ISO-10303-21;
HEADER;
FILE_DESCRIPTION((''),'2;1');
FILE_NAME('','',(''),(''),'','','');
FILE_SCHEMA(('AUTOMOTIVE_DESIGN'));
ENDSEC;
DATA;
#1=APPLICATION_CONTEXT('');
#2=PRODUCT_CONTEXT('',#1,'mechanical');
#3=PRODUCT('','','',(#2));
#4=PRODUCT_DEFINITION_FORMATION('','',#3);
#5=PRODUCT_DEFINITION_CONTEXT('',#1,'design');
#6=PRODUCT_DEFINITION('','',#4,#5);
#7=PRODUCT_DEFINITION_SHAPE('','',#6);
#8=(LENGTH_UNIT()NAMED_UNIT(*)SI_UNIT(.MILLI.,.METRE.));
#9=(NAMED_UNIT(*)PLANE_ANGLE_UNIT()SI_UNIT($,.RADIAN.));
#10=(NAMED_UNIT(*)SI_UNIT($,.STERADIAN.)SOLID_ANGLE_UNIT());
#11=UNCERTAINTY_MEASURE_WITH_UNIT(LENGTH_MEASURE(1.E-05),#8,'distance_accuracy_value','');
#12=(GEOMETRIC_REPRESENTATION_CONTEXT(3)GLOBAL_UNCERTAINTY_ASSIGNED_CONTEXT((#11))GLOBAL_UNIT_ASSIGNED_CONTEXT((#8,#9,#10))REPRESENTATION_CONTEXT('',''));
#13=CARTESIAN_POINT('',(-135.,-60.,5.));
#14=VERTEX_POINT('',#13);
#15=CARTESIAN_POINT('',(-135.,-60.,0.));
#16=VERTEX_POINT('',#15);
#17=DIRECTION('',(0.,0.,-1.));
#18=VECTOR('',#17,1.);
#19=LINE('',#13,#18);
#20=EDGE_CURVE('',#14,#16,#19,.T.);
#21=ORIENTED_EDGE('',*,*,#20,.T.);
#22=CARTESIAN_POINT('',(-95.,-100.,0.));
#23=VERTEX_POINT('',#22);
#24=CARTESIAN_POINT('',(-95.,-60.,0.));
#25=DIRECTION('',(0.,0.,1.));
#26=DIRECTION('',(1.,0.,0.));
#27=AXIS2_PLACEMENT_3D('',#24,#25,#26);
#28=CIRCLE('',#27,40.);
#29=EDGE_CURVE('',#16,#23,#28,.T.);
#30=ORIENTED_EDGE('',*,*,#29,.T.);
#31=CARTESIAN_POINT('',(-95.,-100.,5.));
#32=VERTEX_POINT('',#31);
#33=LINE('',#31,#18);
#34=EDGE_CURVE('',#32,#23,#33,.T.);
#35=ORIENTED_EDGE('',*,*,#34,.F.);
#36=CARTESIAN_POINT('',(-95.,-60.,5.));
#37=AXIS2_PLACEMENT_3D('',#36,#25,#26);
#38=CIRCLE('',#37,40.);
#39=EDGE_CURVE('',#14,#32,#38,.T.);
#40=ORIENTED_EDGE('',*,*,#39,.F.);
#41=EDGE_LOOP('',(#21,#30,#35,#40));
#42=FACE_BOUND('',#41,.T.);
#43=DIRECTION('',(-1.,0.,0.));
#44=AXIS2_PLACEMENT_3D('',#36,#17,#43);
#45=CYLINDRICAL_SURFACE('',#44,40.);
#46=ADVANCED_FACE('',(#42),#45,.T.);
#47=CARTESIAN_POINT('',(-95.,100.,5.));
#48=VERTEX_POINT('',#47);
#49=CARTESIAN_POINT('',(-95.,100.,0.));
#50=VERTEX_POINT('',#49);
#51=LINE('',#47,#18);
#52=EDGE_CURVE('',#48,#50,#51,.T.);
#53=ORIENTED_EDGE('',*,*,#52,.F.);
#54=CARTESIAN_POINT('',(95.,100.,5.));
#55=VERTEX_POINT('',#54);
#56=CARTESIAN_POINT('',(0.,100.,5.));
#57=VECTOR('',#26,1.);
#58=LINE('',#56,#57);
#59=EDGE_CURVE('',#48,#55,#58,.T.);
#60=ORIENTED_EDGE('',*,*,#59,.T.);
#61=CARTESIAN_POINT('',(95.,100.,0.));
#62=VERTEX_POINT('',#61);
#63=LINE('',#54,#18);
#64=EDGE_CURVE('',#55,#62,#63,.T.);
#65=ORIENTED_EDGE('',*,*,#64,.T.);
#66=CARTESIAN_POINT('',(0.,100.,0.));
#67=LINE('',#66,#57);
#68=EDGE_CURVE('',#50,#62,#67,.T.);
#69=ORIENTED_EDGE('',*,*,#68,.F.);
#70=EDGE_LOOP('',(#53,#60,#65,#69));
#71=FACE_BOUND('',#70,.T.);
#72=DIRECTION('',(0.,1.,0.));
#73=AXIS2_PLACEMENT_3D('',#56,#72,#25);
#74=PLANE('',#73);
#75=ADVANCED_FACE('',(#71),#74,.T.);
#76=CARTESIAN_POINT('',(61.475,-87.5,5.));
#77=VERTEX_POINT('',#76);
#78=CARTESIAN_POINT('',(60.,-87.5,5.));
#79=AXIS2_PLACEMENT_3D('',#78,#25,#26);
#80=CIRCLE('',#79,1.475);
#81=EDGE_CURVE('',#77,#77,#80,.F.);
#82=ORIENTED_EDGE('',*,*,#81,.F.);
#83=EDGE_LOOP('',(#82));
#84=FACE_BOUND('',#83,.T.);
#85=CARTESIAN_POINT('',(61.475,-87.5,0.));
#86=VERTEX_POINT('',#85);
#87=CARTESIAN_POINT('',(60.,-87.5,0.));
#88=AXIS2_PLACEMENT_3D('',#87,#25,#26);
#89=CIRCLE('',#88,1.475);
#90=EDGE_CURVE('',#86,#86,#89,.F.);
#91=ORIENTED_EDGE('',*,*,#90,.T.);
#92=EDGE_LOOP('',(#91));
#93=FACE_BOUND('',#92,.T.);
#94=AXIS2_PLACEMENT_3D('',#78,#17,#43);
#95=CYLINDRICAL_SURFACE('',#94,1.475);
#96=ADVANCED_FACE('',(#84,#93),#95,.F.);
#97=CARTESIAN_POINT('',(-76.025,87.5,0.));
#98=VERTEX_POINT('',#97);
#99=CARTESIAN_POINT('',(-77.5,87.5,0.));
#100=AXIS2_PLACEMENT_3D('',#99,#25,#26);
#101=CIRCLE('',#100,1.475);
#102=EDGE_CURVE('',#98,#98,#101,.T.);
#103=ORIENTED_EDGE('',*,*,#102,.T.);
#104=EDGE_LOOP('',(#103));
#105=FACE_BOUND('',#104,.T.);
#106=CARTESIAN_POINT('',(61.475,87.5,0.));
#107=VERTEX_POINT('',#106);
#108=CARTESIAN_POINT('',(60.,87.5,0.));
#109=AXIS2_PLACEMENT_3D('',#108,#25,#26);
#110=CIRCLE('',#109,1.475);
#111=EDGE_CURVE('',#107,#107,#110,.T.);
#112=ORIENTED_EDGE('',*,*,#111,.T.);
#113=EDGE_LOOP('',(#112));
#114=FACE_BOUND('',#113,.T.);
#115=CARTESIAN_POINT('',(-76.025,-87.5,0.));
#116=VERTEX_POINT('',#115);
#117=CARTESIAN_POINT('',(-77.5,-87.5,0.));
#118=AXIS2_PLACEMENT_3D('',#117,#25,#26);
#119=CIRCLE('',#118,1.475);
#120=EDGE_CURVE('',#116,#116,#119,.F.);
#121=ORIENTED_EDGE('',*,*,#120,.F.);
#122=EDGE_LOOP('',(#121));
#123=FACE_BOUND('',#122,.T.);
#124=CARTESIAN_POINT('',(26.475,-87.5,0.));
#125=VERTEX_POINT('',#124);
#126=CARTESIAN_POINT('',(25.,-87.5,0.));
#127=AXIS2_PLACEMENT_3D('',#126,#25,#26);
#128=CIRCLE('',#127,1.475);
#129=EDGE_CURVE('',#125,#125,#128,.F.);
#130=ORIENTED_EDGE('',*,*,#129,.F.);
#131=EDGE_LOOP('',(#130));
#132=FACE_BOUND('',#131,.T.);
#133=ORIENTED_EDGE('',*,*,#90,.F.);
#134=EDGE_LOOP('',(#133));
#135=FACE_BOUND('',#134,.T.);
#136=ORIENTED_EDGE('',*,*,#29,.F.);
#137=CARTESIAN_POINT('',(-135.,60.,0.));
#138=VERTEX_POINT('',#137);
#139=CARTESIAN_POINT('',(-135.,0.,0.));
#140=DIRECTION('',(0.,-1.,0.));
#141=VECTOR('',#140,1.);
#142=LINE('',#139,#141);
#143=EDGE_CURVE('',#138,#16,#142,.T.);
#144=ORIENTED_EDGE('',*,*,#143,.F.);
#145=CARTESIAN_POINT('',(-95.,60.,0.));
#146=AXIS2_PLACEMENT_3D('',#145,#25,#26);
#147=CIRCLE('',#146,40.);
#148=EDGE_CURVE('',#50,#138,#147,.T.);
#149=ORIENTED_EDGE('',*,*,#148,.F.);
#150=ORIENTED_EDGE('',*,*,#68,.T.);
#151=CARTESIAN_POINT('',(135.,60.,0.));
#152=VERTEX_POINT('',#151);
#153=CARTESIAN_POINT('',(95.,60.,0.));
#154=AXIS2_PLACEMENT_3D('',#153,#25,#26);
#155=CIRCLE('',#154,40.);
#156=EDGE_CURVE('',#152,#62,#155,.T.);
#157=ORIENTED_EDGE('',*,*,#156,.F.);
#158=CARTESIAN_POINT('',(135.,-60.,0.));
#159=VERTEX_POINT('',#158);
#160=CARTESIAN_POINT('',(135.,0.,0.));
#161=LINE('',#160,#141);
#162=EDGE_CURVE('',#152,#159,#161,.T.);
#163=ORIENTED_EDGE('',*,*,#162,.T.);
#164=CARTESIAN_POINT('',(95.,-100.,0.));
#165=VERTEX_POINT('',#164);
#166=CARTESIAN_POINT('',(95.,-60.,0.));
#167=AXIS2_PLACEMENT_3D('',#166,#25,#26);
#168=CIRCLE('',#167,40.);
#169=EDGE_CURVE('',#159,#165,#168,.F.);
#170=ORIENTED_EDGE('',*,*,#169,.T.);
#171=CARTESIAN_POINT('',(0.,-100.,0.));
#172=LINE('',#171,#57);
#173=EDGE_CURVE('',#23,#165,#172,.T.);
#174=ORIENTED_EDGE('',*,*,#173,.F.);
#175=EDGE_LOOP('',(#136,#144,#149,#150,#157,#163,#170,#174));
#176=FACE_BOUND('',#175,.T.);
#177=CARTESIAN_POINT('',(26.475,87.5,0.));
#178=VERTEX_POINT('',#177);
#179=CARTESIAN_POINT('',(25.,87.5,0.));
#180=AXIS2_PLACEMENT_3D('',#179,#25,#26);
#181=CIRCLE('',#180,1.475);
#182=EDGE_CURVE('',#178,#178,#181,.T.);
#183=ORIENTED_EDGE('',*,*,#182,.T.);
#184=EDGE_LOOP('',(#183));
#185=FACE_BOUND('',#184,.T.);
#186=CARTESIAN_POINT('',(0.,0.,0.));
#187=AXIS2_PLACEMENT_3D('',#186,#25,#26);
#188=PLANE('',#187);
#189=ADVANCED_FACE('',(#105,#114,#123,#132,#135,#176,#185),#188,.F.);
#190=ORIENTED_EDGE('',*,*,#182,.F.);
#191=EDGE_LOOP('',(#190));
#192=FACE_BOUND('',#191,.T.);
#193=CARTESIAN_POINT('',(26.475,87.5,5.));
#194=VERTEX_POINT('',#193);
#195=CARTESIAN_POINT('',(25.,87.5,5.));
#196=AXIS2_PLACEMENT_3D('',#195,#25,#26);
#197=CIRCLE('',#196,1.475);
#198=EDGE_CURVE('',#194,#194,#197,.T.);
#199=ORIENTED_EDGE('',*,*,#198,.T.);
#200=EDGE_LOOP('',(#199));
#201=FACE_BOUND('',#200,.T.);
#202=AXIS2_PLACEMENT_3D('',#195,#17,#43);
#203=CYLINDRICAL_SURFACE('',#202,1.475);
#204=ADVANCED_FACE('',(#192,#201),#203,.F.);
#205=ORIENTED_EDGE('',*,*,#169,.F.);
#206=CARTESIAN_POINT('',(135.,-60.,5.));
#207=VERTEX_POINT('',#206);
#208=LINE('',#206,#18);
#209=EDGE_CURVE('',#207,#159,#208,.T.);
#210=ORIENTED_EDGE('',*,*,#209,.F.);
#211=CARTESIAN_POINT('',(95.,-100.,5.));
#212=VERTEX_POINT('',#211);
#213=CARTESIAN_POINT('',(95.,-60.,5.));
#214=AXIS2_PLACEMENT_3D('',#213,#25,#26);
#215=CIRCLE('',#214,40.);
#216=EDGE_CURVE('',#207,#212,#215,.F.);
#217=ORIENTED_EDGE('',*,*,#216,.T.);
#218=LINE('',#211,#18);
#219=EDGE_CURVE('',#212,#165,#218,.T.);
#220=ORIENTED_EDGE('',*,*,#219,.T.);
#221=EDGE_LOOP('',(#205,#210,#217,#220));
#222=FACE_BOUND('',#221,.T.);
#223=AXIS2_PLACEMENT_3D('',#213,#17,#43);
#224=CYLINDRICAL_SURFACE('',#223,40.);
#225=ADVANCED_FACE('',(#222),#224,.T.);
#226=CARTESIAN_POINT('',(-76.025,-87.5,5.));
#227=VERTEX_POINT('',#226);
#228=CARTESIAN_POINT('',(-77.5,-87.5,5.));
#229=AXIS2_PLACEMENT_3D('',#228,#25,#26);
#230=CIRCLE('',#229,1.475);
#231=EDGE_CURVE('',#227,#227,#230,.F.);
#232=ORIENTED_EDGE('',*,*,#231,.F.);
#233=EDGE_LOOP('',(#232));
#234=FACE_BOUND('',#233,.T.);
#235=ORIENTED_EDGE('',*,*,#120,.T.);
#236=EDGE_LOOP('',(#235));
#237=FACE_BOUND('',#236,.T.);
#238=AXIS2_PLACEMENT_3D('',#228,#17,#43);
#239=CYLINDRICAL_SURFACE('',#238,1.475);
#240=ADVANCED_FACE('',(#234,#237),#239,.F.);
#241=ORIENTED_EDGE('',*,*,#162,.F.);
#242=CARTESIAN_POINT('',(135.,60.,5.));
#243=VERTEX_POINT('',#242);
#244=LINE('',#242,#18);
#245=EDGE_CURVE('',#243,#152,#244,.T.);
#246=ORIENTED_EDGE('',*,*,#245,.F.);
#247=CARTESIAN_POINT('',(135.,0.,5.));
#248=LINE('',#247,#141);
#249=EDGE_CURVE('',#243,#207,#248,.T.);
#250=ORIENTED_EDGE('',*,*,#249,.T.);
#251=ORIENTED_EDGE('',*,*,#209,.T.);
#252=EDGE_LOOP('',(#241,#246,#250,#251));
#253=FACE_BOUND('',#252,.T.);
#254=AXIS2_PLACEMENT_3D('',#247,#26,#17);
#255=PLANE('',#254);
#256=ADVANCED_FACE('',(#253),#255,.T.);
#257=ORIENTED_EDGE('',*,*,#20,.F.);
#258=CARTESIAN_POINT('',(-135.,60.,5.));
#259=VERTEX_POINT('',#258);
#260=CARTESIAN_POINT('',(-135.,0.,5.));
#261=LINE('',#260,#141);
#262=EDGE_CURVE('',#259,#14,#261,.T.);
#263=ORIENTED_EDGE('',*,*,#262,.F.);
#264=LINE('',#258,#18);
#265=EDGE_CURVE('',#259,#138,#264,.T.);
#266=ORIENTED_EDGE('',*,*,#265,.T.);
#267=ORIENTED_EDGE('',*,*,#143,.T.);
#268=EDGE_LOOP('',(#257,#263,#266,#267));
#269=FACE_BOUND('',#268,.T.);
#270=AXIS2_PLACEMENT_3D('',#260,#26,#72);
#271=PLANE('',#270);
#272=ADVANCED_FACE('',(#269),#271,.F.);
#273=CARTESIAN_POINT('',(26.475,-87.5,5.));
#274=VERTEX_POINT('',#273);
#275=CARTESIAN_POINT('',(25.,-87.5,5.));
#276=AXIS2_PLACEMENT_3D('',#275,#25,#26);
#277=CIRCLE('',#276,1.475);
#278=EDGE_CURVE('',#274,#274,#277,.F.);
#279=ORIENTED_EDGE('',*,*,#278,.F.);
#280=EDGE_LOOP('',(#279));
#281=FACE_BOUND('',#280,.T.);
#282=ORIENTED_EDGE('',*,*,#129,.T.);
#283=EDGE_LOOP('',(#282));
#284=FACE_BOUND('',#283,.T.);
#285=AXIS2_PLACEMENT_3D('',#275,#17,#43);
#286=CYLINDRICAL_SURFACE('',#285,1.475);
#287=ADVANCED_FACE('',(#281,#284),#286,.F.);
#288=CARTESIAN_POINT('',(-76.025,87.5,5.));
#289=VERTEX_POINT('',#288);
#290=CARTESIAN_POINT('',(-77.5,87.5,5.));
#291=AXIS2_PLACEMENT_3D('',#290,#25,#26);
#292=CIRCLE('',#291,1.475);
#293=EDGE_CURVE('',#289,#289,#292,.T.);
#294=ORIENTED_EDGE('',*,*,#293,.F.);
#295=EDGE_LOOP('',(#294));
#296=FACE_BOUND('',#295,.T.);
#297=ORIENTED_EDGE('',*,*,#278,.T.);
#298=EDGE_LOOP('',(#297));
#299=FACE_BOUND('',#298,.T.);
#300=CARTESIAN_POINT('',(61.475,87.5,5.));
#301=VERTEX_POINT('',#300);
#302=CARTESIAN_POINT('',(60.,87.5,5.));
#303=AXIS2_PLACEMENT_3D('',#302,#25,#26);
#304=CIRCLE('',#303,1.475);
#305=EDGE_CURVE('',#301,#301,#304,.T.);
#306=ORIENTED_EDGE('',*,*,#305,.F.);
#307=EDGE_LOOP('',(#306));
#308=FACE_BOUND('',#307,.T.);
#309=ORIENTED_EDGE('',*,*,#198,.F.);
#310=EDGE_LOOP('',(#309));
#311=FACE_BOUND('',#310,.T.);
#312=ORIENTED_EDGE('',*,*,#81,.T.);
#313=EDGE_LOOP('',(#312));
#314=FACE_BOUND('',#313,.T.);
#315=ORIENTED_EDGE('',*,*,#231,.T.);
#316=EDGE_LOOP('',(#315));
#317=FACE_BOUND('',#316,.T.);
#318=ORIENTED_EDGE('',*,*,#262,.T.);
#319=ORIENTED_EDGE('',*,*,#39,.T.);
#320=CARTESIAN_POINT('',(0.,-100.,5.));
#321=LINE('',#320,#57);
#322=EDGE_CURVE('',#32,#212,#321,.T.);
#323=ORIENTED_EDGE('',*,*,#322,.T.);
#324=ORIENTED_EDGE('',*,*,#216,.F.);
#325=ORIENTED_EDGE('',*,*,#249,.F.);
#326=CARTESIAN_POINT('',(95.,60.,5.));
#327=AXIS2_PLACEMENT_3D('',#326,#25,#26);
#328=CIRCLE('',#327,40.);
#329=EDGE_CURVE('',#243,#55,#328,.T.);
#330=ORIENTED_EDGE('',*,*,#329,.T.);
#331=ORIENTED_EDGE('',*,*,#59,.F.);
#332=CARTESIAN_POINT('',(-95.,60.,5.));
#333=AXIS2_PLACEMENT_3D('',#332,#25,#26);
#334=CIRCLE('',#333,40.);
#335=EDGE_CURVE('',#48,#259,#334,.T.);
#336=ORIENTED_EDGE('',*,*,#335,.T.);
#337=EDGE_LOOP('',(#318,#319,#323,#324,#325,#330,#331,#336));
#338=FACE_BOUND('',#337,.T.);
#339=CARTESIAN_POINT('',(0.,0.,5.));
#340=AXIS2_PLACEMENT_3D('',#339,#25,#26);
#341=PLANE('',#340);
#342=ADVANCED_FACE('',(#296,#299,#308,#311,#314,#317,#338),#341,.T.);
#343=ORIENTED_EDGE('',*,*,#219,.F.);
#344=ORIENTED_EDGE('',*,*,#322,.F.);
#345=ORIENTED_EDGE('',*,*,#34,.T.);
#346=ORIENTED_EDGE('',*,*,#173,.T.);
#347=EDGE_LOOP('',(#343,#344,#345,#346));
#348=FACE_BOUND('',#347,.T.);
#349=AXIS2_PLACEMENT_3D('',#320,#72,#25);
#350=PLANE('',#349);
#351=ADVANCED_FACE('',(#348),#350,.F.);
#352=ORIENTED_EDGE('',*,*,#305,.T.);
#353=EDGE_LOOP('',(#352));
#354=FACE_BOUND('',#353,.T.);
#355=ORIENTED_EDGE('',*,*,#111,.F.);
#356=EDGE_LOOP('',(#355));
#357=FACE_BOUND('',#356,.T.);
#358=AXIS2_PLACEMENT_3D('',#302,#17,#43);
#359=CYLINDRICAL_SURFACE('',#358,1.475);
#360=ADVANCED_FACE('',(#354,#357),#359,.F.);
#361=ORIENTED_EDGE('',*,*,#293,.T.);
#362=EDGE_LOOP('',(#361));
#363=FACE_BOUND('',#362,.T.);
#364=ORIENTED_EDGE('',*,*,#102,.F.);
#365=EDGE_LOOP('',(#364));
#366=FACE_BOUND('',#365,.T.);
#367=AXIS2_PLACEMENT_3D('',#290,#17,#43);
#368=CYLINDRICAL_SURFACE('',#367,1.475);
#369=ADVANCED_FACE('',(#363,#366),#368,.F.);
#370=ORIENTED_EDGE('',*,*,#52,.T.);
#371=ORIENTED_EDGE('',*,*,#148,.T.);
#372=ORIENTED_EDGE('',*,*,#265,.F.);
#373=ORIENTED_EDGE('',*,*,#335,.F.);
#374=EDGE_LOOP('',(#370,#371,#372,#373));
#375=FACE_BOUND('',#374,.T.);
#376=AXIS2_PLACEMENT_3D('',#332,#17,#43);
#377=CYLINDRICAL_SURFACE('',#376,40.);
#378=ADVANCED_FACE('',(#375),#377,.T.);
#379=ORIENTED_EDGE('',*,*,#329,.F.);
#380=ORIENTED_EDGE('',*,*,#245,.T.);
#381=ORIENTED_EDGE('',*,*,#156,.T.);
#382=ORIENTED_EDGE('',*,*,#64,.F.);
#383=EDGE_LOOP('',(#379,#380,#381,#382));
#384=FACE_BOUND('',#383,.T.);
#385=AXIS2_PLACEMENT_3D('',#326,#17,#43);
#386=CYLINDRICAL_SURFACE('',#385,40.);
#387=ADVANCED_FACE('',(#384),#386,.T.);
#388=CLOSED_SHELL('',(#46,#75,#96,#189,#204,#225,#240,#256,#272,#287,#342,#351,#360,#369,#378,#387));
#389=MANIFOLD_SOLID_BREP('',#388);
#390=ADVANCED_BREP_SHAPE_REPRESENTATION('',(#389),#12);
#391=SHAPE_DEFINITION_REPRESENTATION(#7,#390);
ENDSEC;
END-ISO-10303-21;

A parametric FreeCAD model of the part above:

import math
import FreeCAD as App
import Part
import Sketcher
from FreeCAD import Vector
Q = App.Units.Quantity

doc = App.newDocument("Part")
body = doc.addObject("PartDesign::Body", "Body")

# Sketch on XY plane
sketch1 = doc.addObject("Sketcher::SketchObject", "Sketch")
body.addObject(sketch1)
sketch1.AttachmentSupport = (doc.XY_Plane, [""])
sketch1.MapMode = "FlatFace"
sketch1.addGeometry(Part.LineSegment(Vector(95, 100, 0), Vector(-95, 100, 0)), False)
sketch1.addGeometry(Part.ArcOfCircle(Part.Circle(Vector(-95, 60, 0), Vector(0, 0, 1), 40), math.radians(90), math.radians(180)), False)
sketch1.addGeometry(Part.LineSegment(Vector(-135, 60, 0), Vector(-135, -60, 0)), False)
sketch1.addGeometry(Part.ArcOfCircle(Part.Circle(Vector(-95, -60, 0), Vector(0, 0, 1), 40), math.radians(-180), math.radians(-90)), False)
sketch1.addGeometry(Part.LineSegment(Vector(-95, -100, 0), Vector(95, -100, 0)), False)
sketch1.addGeometry(Part.ArcOfCircle(Part.Circle(Vector(95, -60, 0), Vector(0, 0, 1), 40), math.radians(-90), math.radians(0)), False)
sketch1.addGeometry(Part.LineSegment(Vector(135, -60, 0), Vector(135, 60, 0)), False)
sketch1.addGeometry(Part.ArcOfCircle(Part.Circle(Vector(95, 60, 0), Vector(0, 0, 1), 40), math.radians(0), math.radians(90)), False)
sketch1.addGeometry(Part.Circle(Vector(60, -87.5, 0), Vector(0, 0, 1), 1.5), False)
sketch1.addGeometry(Part.Circle(Vector(25, -87.5, 0), Vector(0, 0, 1), 1.5), False)
sketch1.addGeometry(Part.Circle(Vector(-77.5, -87.5, 0), Vector(0, 0, 1), 1.5), False)
sketch1.addGeometry(Part.Circle(Vector(60, 87.5, 0), Vector(0, 0, 1), 1.5), False)
sketch1.addGeometry(Part.Circle(Vector(25, 87.5, 0), Vector(0, 0, 1), 1.5), False)
sketch1.addGeometry(Part.Circle(Vector(-77.5, 87.5, 0), Vector(0, 0, 1), 1.5), False)
sketch1.addConstraint(Sketcher.Constraint("Tangent", 0, 2, 1, 1))
sketch1.addConstraint(Sketcher.Constraint("Tangent", 1, 2, 2, 1))
sketch1.addConstraint(Sketcher.Constraint("Tangent", 2, 2, 3, 1))
sketch1.addConstraint(Sketcher.Constraint("Tangent", 3, 2, 4, 1))
sketch1.addConstraint(Sketcher.Constraint("Tangent", 4, 2, 5, 1))
sketch1.addConstraint(Sketcher.Constraint("Tangent", 5, 2, 6, 1))
sketch1.addConstraint(Sketcher.Constraint("Tangent", 6, 2, 7, 1))
sketch1.addConstraint(Sketcher.Constraint("Tangent", 7, 2, 0, 1))
sketch1.addConstraint(Sketcher.Constraint("Horizontal", 0))
sketch1.addConstraint(Sketcher.Constraint("Vertical", 2))
sketch1.addConstraint(Sketcher.Constraint("Horizontal", 4))
sketch1.addConstraint(Sketcher.Constraint("Vertical", 6))
sketch1.addConstraint(Sketcher.Constraint("Equal", 1, 3))
sketch1.addConstraint(Sketcher.Constraint("Equal", 3, 5))
sketch1.addConstraint(Sketcher.Constraint("Equal", 5, 7))
sketch1.addConstraint(Sketcher.Constraint("Equal", 8, 9))
sketch1.addConstraint(Sketcher.Constraint("Equal", 9, 10))
sketch1.addConstraint(Sketcher.Constraint("Equal", 10, 11))
sketch1.addConstraint(Sketcher.Constraint("Equal", 11, 12))
sketch1.addConstraint(Sketcher.Constraint("Equal", 12, 13))
sketch1.addConstraint(Sketcher.Constraint("Symmetric", 1, 3, 5, 3, -1, 1))
sketch1.addConstraint(Sketcher.Constraint("Symmetric", 8, 3, 11, 3, -1))
sketch1.addConstraint(Sketcher.Constraint("Symmetric", 9, 3, 12, 3, -1))
sketch1.addConstraint(Sketcher.Constraint("Symmetric", 10, 3, 13, 3, -1))
sketch1.addConstraint(Sketcher.Constraint("Horizontal", 8, 3, 9, 3))
sketch1.addConstraint(Sketcher.Constraint("Horizontal", 9, 3, 10, 3))
sketch1.addConstraint(Sketcher.Constraint("Radius", 1, Q("40 mm")))
sketch1.addConstraint(Sketcher.Constraint("Diameter", 8, Q("2.95 mm")))
sketch1.addConstraint(Sketcher.Constraint("DistanceX", 0, 2, 0, 1, Q("190 mm")))
sketch1.addConstraint(Sketcher.Constraint("DistanceY", 2, 2, 2, 1, Q("120 mm")))
sketch1.addConstraint(Sketcher.Constraint("DistanceX", -1, 1, 8, 3, Q("60 mm")))
sketch1.addConstraint(Sketcher.Constraint("DistanceX", -1, 1, 9, 3, Q("25 mm")))
sketch1.addConstraint(Sketcher.Constraint("DistanceY", 8, 3, 11, 3, Q("175 mm")))
sketch1.addConstraint(Sketcher.Constraint("DistanceX", 10, 3, -1, 1, Q("77.5 mm")))
pad1 = doc.addObject("PartDesign::Pad", "Pad")
body.addObject(pad1)
pad1.Profile = sketch1
pad1.Length = 5

doc.recompute()
